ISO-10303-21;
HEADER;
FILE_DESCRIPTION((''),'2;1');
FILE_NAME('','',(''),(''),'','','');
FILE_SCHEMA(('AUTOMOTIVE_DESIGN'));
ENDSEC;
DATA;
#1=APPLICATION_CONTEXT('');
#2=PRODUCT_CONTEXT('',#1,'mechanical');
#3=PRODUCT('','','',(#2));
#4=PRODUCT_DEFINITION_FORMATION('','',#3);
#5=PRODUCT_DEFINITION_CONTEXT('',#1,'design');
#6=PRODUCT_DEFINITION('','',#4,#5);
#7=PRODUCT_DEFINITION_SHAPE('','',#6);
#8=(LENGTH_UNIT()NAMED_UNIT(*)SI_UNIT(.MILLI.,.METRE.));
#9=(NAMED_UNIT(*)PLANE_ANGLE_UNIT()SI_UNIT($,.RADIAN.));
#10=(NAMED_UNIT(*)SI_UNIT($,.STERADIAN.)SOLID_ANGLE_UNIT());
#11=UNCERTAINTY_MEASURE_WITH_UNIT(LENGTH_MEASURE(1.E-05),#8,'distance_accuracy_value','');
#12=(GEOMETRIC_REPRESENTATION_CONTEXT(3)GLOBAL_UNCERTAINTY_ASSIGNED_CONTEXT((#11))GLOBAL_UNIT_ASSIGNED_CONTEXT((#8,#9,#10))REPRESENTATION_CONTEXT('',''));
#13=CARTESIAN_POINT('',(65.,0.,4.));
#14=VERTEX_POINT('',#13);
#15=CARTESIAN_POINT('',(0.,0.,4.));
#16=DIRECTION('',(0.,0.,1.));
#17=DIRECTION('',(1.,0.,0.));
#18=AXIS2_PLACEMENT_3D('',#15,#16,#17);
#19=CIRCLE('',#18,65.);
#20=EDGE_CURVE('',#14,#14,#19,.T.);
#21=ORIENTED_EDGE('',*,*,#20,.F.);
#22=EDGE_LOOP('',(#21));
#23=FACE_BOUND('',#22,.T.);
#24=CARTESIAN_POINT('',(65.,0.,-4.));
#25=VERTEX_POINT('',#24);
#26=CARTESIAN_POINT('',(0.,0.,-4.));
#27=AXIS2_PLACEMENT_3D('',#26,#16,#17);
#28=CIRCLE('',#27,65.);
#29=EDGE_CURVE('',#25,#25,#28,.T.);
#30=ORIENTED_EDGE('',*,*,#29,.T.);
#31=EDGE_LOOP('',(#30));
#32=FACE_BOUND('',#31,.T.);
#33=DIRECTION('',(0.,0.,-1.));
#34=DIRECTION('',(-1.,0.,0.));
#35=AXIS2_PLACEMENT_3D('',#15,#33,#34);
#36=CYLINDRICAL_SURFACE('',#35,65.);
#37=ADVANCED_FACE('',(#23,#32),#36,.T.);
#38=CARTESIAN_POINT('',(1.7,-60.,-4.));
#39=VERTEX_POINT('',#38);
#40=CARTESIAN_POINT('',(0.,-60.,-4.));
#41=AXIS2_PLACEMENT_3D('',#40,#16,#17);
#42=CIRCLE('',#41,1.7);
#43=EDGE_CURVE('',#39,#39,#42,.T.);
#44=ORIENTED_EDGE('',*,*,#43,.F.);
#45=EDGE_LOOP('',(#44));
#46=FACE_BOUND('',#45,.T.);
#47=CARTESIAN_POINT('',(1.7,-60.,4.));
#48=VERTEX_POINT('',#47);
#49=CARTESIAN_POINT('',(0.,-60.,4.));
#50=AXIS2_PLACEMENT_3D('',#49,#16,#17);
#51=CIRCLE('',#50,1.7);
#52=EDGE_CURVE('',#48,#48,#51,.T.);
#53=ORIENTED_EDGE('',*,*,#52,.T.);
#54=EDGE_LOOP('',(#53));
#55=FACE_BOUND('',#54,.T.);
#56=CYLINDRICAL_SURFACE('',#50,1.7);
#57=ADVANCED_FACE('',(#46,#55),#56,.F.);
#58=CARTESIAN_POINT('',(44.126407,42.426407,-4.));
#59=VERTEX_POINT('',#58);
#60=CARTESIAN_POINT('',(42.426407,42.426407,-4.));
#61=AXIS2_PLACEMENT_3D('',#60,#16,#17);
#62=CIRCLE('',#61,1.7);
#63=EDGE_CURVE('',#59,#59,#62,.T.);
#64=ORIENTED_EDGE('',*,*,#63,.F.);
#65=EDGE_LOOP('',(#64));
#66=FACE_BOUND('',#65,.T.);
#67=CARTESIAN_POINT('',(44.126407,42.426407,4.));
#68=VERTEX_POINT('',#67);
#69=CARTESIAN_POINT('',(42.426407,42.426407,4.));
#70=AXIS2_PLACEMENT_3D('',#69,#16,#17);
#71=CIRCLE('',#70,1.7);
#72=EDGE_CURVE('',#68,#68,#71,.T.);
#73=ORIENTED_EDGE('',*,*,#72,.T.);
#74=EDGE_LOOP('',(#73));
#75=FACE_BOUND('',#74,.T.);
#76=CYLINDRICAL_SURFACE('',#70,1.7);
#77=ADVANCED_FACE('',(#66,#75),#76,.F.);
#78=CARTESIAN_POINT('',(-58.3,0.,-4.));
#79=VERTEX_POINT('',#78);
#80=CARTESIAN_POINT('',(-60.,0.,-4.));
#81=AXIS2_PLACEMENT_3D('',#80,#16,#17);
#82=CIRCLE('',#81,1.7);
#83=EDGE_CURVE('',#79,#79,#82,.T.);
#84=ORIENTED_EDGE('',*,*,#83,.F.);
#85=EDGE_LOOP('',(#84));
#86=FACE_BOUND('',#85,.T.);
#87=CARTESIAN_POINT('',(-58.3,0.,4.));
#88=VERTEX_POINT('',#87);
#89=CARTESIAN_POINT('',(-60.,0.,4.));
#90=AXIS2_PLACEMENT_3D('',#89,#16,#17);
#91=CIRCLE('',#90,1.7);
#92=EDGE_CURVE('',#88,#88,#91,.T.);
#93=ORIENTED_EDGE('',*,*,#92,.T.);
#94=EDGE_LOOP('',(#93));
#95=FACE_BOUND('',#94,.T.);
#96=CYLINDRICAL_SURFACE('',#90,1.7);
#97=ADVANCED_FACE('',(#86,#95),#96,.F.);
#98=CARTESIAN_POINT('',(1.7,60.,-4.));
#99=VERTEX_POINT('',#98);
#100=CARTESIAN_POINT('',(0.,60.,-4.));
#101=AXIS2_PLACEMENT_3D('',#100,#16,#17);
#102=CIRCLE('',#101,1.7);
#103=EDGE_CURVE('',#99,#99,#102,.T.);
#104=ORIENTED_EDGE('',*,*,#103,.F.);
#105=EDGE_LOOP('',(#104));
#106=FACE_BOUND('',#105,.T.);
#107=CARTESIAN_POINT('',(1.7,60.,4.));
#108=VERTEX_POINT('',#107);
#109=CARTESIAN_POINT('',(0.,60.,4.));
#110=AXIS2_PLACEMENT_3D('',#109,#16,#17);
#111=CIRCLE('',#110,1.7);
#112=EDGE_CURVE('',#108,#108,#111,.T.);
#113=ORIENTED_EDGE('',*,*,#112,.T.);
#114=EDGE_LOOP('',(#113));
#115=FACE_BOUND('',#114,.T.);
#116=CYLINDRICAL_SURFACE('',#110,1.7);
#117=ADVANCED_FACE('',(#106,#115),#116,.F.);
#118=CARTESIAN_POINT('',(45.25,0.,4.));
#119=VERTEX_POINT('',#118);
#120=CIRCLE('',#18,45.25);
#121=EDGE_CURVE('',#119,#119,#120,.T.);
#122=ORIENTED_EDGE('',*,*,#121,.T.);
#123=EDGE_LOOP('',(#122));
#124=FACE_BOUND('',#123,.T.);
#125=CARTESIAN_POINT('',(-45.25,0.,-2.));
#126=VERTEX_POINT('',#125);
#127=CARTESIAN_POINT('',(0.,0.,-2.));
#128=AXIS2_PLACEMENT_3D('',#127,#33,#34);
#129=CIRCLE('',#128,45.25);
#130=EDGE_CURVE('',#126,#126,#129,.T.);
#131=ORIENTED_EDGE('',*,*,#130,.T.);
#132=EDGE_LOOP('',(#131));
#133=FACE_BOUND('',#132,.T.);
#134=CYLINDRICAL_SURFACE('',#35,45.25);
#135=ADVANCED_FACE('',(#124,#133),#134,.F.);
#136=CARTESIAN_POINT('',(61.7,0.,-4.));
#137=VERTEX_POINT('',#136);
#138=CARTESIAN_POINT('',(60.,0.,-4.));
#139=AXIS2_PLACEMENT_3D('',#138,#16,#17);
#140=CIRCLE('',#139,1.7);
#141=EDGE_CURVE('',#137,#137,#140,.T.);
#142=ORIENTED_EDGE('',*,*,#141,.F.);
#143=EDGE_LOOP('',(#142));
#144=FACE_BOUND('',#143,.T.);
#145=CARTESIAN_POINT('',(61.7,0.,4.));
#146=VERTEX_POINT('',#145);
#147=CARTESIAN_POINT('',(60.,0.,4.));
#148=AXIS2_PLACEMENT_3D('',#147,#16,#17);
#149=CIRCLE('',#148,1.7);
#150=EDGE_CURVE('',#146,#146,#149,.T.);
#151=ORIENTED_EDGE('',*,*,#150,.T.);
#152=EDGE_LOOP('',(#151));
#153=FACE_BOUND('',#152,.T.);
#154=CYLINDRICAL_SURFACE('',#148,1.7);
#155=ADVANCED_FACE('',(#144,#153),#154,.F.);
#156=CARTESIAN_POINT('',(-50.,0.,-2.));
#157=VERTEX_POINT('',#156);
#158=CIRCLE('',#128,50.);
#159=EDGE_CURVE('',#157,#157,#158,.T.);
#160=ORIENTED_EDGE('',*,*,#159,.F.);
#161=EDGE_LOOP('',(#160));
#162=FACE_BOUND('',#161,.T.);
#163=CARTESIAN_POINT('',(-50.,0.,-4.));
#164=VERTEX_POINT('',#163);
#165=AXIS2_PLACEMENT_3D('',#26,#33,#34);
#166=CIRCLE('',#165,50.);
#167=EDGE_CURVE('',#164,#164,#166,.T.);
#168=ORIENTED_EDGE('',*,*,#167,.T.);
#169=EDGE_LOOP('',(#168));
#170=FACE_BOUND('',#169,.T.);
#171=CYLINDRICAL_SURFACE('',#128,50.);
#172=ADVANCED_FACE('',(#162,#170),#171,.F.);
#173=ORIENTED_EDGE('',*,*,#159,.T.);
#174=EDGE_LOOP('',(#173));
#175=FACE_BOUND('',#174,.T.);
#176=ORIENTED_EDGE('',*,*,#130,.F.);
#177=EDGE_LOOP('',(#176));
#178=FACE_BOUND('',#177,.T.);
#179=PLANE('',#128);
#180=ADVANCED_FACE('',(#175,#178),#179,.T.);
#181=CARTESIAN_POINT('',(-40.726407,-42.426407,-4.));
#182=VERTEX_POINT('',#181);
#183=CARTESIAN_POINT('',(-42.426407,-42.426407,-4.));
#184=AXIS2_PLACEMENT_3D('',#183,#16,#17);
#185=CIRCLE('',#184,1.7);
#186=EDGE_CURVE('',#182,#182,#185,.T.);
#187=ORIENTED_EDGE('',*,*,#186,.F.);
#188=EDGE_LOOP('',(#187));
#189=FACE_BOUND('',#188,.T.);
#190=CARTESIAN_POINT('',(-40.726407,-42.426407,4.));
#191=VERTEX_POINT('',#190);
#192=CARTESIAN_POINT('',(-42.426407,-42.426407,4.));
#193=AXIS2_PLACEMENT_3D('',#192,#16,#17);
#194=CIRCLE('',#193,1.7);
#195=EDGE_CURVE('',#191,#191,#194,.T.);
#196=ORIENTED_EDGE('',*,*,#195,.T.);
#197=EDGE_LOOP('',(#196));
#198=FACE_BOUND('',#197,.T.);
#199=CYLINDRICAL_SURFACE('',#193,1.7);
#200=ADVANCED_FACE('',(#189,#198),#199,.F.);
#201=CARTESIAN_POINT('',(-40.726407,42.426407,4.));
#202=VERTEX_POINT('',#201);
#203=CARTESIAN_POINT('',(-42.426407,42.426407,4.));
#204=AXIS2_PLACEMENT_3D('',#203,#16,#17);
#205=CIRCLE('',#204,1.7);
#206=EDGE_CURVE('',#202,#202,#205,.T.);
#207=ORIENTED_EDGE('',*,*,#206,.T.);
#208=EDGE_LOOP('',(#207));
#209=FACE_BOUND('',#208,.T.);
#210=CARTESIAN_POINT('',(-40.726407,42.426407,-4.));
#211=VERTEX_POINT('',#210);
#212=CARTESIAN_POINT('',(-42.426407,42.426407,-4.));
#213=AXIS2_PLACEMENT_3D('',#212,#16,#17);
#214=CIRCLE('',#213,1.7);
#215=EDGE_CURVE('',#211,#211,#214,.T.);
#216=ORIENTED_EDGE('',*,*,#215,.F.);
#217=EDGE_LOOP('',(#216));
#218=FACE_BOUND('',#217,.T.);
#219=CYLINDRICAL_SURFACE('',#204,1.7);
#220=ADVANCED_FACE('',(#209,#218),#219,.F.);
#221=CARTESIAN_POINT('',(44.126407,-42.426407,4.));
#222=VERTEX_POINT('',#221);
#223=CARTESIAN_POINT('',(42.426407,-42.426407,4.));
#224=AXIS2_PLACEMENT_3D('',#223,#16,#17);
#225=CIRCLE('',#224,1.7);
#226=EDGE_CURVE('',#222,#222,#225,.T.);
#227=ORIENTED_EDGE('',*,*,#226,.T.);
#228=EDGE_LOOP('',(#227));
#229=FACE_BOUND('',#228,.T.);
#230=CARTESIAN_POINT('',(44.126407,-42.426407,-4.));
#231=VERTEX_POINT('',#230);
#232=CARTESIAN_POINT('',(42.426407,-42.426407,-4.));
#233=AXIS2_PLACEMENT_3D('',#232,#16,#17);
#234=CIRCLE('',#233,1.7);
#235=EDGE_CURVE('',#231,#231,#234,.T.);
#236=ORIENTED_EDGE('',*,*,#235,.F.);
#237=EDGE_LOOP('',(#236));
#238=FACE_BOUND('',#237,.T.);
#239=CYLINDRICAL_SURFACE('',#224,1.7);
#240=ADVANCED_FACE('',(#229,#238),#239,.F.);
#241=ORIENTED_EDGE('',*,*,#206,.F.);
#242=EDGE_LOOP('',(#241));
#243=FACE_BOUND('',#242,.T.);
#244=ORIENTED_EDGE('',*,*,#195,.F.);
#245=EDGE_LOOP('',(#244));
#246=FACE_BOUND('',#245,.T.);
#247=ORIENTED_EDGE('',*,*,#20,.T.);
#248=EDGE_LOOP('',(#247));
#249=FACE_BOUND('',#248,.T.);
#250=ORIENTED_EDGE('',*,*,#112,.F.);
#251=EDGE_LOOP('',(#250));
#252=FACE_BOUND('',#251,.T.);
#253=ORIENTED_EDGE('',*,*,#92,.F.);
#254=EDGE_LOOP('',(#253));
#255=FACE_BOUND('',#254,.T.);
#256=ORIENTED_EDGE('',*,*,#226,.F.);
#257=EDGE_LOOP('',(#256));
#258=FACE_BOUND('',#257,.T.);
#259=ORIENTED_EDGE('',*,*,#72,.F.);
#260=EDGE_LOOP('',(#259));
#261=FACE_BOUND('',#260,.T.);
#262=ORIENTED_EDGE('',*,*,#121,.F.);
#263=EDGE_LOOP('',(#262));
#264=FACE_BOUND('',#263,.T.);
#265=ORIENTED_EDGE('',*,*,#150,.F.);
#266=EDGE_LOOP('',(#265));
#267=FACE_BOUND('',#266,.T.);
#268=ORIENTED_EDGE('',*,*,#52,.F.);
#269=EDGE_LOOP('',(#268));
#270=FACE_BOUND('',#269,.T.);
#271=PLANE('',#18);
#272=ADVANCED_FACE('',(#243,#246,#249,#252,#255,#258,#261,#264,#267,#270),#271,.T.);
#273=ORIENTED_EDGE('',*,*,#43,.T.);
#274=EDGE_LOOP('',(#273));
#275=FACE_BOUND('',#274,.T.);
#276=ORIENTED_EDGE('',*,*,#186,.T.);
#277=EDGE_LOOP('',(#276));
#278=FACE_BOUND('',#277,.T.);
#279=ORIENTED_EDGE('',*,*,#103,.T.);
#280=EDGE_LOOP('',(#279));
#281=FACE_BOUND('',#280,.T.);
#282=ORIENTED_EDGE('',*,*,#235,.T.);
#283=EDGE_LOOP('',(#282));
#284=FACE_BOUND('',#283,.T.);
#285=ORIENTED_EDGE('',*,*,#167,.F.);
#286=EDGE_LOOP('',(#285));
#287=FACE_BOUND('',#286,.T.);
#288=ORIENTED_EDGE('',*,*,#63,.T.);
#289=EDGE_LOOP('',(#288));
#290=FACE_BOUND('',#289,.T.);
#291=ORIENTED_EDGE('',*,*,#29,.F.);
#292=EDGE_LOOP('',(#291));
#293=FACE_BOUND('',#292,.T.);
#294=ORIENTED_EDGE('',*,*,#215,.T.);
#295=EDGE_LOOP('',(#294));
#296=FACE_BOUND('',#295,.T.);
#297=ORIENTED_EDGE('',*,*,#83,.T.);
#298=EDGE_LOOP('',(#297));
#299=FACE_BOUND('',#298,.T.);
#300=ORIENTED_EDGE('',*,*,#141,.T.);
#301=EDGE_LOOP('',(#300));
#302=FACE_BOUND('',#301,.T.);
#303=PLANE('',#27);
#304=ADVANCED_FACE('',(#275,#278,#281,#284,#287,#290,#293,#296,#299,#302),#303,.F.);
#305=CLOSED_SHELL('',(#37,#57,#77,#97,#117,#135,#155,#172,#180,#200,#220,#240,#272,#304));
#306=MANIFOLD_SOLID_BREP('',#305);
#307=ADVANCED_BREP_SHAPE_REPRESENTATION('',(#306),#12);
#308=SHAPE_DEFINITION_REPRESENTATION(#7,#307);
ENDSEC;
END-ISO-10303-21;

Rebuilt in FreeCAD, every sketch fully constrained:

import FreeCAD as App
import Part
import Sketcher

V = App.Vector
Q = App.Units.Quantity

doc = App.newDocument("Part")
body = doc.addObject("PartDesign::Body", "Body")

# Sketch on XY plane
sketch1 = body.newObject("Sketcher::SketchObject", "Sketch")
sketch1.AttachmentSupport = (doc.getObject("XY_Plane"), [""])
sketch1.MapMode = "FlatFace"
sketch1.addGeometry([
    Part.Circle(V(0, 0, 0), V(0, 0, 1), 65),
    Part.Circle(V(0, 0, 0), V(0, 0, 1), 45.25),
], False)
sketch1.addConstraint([
    Sketcher.Constraint("Coincident", 0, 3, -1, 1),
    Sketcher.Constraint("Coincident", 1, 3, -1, 1),
    Sketcher.Constraint("Diameter", 0, Q("130 mm")),
    Sketcher.Constraint("Diameter", 1, Q("90.5 mm")),
])
pad1 = body.newObject("PartDesign::Pad", "Pad")
pad1.Profile = sketch1
pad1.Length = 8
pad1.Midplane = True

# Sketch on XY plane
sketch2 = body.newObject("Sketcher::SketchObject", "Sketch001")
sketch2.AttachmentSupport = (doc.getObject("XY_Plane"), [""])
sketch2.MapMode = "FlatFace"
sketch2.AttachmentOffset = App.Placement(V(0, 0, 4), App.Rotation())
sketch2.addGeometry([
    Part.Circle(V(0, 60, 0), V(0, 0, 1), 1.7),  # 0
    Part.Circle(V(42.426407, 42.426407, 0), V(0, 0, 1), 1.7),  # 1
    Part.Circle(V(60, 0, 0), V(0, 0, 1), 1.7),  # 2
    Part.Circle(V(42.426407, -42.426407, 0), V(0, 0, 1), 1.7),  # 3
    Part.Circle(V(0, -60, 0), V(0, 0, 1), 1.7),  # 4
    Part.Circle(V(-42.426407, -42.426407, 0), V(0, 0, 1), 1.7),  # 5
    Part.Circle(V(-60, 0, 0), V(0, 0, 1), 1.7),  # 6
    Part.Circle(V(-42.426407, 42.426407, 0), V(0, 0, 1), 1.7),  # 7
], False)
sketch2.addConstraint([
    Sketcher.Constraint("Equal", 0, 1),
    Sketcher.Constraint("Equal", 1, 2),
    Sketcher.Constraint("Equal", 2, 3),
    Sketcher.Constraint("Equal", 3, 4),
    Sketcher.Constraint("Equal", 4, 5),
    Sketcher.Constraint("Equal", 5, 6),
    Sketcher.Constraint("Equal", 6, 7),
    Sketcher.Constraint("Symmetric", 0, 3, 4, 3, -1, 1),
    Sketcher.Constraint("Symmetric", 1, 3, 5, 3, -1, 1),
    Sketcher.Constraint("Symmetric", 2, 3, 6, 3, -1, 1),
    Sketcher.Constraint("Symmetric", 3, 3, 7, 3, -1, 1),
    Sketcher.Constraint("Symmetric", 3, 3, 5, 3, -2),
    Sketcher.Constraint("PointOnObject", 0, 3, -2),
    Sketcher.Constraint("PointOnObject", 2, 3, -1),
    Sketcher.Constraint("Diameter", 0, Q("3.4 mm")),
    Sketcher.Constraint("DistanceY", -1, 1, 0, 3, Q("60 mm")),
    Sketcher.Constraint("DistanceX", -1, 1, 2, 3, Q("60 mm")),
    Sketcher.Constraint("DistanceX", -1, 1, 1, 3, Q("42.426407 mm")),
    Sketcher.Constraint("DistanceY", -1, 1, 1, 3, Q("42.426407 mm")),
])
doc.recompute()
hole = body.newObject("PartDesign::Hole", "Hole")
hole.Profile = sketch2
hole.ThreadType = "None"
hole.Diameter = 3.4
hole.DepthType = "ThroughAll"

# Sketch on XY plane
sketch3 = body.newObject("Sketcher::SketchObject", "Sketch002")
sketch3.AttachmentSupport = (doc.getObject("XY_Plane"), [""])
sketch3.MapMode = "FlatFace"
sketch3.AttachmentOffset = App.Placement(V(0, 0, -4), App.Rotation())
sketch3.addGeometry(Part.Circle(V(0, 0, 0), V(0, 0, 1), 50), False)
sketch3.addConstraint([
    Sketcher.Constraint("Coincident", 0, 3, -1, 1),
    Sketcher.Constraint("Diameter", 0, Q("100 mm")),
])
pocket1 = body.newObject("PartDesign::Pocket", "Pocket")
pocket1.Profile = sketch3
pocket1.Length = 2
pocket1.Reversed = True

doc.recompute()
